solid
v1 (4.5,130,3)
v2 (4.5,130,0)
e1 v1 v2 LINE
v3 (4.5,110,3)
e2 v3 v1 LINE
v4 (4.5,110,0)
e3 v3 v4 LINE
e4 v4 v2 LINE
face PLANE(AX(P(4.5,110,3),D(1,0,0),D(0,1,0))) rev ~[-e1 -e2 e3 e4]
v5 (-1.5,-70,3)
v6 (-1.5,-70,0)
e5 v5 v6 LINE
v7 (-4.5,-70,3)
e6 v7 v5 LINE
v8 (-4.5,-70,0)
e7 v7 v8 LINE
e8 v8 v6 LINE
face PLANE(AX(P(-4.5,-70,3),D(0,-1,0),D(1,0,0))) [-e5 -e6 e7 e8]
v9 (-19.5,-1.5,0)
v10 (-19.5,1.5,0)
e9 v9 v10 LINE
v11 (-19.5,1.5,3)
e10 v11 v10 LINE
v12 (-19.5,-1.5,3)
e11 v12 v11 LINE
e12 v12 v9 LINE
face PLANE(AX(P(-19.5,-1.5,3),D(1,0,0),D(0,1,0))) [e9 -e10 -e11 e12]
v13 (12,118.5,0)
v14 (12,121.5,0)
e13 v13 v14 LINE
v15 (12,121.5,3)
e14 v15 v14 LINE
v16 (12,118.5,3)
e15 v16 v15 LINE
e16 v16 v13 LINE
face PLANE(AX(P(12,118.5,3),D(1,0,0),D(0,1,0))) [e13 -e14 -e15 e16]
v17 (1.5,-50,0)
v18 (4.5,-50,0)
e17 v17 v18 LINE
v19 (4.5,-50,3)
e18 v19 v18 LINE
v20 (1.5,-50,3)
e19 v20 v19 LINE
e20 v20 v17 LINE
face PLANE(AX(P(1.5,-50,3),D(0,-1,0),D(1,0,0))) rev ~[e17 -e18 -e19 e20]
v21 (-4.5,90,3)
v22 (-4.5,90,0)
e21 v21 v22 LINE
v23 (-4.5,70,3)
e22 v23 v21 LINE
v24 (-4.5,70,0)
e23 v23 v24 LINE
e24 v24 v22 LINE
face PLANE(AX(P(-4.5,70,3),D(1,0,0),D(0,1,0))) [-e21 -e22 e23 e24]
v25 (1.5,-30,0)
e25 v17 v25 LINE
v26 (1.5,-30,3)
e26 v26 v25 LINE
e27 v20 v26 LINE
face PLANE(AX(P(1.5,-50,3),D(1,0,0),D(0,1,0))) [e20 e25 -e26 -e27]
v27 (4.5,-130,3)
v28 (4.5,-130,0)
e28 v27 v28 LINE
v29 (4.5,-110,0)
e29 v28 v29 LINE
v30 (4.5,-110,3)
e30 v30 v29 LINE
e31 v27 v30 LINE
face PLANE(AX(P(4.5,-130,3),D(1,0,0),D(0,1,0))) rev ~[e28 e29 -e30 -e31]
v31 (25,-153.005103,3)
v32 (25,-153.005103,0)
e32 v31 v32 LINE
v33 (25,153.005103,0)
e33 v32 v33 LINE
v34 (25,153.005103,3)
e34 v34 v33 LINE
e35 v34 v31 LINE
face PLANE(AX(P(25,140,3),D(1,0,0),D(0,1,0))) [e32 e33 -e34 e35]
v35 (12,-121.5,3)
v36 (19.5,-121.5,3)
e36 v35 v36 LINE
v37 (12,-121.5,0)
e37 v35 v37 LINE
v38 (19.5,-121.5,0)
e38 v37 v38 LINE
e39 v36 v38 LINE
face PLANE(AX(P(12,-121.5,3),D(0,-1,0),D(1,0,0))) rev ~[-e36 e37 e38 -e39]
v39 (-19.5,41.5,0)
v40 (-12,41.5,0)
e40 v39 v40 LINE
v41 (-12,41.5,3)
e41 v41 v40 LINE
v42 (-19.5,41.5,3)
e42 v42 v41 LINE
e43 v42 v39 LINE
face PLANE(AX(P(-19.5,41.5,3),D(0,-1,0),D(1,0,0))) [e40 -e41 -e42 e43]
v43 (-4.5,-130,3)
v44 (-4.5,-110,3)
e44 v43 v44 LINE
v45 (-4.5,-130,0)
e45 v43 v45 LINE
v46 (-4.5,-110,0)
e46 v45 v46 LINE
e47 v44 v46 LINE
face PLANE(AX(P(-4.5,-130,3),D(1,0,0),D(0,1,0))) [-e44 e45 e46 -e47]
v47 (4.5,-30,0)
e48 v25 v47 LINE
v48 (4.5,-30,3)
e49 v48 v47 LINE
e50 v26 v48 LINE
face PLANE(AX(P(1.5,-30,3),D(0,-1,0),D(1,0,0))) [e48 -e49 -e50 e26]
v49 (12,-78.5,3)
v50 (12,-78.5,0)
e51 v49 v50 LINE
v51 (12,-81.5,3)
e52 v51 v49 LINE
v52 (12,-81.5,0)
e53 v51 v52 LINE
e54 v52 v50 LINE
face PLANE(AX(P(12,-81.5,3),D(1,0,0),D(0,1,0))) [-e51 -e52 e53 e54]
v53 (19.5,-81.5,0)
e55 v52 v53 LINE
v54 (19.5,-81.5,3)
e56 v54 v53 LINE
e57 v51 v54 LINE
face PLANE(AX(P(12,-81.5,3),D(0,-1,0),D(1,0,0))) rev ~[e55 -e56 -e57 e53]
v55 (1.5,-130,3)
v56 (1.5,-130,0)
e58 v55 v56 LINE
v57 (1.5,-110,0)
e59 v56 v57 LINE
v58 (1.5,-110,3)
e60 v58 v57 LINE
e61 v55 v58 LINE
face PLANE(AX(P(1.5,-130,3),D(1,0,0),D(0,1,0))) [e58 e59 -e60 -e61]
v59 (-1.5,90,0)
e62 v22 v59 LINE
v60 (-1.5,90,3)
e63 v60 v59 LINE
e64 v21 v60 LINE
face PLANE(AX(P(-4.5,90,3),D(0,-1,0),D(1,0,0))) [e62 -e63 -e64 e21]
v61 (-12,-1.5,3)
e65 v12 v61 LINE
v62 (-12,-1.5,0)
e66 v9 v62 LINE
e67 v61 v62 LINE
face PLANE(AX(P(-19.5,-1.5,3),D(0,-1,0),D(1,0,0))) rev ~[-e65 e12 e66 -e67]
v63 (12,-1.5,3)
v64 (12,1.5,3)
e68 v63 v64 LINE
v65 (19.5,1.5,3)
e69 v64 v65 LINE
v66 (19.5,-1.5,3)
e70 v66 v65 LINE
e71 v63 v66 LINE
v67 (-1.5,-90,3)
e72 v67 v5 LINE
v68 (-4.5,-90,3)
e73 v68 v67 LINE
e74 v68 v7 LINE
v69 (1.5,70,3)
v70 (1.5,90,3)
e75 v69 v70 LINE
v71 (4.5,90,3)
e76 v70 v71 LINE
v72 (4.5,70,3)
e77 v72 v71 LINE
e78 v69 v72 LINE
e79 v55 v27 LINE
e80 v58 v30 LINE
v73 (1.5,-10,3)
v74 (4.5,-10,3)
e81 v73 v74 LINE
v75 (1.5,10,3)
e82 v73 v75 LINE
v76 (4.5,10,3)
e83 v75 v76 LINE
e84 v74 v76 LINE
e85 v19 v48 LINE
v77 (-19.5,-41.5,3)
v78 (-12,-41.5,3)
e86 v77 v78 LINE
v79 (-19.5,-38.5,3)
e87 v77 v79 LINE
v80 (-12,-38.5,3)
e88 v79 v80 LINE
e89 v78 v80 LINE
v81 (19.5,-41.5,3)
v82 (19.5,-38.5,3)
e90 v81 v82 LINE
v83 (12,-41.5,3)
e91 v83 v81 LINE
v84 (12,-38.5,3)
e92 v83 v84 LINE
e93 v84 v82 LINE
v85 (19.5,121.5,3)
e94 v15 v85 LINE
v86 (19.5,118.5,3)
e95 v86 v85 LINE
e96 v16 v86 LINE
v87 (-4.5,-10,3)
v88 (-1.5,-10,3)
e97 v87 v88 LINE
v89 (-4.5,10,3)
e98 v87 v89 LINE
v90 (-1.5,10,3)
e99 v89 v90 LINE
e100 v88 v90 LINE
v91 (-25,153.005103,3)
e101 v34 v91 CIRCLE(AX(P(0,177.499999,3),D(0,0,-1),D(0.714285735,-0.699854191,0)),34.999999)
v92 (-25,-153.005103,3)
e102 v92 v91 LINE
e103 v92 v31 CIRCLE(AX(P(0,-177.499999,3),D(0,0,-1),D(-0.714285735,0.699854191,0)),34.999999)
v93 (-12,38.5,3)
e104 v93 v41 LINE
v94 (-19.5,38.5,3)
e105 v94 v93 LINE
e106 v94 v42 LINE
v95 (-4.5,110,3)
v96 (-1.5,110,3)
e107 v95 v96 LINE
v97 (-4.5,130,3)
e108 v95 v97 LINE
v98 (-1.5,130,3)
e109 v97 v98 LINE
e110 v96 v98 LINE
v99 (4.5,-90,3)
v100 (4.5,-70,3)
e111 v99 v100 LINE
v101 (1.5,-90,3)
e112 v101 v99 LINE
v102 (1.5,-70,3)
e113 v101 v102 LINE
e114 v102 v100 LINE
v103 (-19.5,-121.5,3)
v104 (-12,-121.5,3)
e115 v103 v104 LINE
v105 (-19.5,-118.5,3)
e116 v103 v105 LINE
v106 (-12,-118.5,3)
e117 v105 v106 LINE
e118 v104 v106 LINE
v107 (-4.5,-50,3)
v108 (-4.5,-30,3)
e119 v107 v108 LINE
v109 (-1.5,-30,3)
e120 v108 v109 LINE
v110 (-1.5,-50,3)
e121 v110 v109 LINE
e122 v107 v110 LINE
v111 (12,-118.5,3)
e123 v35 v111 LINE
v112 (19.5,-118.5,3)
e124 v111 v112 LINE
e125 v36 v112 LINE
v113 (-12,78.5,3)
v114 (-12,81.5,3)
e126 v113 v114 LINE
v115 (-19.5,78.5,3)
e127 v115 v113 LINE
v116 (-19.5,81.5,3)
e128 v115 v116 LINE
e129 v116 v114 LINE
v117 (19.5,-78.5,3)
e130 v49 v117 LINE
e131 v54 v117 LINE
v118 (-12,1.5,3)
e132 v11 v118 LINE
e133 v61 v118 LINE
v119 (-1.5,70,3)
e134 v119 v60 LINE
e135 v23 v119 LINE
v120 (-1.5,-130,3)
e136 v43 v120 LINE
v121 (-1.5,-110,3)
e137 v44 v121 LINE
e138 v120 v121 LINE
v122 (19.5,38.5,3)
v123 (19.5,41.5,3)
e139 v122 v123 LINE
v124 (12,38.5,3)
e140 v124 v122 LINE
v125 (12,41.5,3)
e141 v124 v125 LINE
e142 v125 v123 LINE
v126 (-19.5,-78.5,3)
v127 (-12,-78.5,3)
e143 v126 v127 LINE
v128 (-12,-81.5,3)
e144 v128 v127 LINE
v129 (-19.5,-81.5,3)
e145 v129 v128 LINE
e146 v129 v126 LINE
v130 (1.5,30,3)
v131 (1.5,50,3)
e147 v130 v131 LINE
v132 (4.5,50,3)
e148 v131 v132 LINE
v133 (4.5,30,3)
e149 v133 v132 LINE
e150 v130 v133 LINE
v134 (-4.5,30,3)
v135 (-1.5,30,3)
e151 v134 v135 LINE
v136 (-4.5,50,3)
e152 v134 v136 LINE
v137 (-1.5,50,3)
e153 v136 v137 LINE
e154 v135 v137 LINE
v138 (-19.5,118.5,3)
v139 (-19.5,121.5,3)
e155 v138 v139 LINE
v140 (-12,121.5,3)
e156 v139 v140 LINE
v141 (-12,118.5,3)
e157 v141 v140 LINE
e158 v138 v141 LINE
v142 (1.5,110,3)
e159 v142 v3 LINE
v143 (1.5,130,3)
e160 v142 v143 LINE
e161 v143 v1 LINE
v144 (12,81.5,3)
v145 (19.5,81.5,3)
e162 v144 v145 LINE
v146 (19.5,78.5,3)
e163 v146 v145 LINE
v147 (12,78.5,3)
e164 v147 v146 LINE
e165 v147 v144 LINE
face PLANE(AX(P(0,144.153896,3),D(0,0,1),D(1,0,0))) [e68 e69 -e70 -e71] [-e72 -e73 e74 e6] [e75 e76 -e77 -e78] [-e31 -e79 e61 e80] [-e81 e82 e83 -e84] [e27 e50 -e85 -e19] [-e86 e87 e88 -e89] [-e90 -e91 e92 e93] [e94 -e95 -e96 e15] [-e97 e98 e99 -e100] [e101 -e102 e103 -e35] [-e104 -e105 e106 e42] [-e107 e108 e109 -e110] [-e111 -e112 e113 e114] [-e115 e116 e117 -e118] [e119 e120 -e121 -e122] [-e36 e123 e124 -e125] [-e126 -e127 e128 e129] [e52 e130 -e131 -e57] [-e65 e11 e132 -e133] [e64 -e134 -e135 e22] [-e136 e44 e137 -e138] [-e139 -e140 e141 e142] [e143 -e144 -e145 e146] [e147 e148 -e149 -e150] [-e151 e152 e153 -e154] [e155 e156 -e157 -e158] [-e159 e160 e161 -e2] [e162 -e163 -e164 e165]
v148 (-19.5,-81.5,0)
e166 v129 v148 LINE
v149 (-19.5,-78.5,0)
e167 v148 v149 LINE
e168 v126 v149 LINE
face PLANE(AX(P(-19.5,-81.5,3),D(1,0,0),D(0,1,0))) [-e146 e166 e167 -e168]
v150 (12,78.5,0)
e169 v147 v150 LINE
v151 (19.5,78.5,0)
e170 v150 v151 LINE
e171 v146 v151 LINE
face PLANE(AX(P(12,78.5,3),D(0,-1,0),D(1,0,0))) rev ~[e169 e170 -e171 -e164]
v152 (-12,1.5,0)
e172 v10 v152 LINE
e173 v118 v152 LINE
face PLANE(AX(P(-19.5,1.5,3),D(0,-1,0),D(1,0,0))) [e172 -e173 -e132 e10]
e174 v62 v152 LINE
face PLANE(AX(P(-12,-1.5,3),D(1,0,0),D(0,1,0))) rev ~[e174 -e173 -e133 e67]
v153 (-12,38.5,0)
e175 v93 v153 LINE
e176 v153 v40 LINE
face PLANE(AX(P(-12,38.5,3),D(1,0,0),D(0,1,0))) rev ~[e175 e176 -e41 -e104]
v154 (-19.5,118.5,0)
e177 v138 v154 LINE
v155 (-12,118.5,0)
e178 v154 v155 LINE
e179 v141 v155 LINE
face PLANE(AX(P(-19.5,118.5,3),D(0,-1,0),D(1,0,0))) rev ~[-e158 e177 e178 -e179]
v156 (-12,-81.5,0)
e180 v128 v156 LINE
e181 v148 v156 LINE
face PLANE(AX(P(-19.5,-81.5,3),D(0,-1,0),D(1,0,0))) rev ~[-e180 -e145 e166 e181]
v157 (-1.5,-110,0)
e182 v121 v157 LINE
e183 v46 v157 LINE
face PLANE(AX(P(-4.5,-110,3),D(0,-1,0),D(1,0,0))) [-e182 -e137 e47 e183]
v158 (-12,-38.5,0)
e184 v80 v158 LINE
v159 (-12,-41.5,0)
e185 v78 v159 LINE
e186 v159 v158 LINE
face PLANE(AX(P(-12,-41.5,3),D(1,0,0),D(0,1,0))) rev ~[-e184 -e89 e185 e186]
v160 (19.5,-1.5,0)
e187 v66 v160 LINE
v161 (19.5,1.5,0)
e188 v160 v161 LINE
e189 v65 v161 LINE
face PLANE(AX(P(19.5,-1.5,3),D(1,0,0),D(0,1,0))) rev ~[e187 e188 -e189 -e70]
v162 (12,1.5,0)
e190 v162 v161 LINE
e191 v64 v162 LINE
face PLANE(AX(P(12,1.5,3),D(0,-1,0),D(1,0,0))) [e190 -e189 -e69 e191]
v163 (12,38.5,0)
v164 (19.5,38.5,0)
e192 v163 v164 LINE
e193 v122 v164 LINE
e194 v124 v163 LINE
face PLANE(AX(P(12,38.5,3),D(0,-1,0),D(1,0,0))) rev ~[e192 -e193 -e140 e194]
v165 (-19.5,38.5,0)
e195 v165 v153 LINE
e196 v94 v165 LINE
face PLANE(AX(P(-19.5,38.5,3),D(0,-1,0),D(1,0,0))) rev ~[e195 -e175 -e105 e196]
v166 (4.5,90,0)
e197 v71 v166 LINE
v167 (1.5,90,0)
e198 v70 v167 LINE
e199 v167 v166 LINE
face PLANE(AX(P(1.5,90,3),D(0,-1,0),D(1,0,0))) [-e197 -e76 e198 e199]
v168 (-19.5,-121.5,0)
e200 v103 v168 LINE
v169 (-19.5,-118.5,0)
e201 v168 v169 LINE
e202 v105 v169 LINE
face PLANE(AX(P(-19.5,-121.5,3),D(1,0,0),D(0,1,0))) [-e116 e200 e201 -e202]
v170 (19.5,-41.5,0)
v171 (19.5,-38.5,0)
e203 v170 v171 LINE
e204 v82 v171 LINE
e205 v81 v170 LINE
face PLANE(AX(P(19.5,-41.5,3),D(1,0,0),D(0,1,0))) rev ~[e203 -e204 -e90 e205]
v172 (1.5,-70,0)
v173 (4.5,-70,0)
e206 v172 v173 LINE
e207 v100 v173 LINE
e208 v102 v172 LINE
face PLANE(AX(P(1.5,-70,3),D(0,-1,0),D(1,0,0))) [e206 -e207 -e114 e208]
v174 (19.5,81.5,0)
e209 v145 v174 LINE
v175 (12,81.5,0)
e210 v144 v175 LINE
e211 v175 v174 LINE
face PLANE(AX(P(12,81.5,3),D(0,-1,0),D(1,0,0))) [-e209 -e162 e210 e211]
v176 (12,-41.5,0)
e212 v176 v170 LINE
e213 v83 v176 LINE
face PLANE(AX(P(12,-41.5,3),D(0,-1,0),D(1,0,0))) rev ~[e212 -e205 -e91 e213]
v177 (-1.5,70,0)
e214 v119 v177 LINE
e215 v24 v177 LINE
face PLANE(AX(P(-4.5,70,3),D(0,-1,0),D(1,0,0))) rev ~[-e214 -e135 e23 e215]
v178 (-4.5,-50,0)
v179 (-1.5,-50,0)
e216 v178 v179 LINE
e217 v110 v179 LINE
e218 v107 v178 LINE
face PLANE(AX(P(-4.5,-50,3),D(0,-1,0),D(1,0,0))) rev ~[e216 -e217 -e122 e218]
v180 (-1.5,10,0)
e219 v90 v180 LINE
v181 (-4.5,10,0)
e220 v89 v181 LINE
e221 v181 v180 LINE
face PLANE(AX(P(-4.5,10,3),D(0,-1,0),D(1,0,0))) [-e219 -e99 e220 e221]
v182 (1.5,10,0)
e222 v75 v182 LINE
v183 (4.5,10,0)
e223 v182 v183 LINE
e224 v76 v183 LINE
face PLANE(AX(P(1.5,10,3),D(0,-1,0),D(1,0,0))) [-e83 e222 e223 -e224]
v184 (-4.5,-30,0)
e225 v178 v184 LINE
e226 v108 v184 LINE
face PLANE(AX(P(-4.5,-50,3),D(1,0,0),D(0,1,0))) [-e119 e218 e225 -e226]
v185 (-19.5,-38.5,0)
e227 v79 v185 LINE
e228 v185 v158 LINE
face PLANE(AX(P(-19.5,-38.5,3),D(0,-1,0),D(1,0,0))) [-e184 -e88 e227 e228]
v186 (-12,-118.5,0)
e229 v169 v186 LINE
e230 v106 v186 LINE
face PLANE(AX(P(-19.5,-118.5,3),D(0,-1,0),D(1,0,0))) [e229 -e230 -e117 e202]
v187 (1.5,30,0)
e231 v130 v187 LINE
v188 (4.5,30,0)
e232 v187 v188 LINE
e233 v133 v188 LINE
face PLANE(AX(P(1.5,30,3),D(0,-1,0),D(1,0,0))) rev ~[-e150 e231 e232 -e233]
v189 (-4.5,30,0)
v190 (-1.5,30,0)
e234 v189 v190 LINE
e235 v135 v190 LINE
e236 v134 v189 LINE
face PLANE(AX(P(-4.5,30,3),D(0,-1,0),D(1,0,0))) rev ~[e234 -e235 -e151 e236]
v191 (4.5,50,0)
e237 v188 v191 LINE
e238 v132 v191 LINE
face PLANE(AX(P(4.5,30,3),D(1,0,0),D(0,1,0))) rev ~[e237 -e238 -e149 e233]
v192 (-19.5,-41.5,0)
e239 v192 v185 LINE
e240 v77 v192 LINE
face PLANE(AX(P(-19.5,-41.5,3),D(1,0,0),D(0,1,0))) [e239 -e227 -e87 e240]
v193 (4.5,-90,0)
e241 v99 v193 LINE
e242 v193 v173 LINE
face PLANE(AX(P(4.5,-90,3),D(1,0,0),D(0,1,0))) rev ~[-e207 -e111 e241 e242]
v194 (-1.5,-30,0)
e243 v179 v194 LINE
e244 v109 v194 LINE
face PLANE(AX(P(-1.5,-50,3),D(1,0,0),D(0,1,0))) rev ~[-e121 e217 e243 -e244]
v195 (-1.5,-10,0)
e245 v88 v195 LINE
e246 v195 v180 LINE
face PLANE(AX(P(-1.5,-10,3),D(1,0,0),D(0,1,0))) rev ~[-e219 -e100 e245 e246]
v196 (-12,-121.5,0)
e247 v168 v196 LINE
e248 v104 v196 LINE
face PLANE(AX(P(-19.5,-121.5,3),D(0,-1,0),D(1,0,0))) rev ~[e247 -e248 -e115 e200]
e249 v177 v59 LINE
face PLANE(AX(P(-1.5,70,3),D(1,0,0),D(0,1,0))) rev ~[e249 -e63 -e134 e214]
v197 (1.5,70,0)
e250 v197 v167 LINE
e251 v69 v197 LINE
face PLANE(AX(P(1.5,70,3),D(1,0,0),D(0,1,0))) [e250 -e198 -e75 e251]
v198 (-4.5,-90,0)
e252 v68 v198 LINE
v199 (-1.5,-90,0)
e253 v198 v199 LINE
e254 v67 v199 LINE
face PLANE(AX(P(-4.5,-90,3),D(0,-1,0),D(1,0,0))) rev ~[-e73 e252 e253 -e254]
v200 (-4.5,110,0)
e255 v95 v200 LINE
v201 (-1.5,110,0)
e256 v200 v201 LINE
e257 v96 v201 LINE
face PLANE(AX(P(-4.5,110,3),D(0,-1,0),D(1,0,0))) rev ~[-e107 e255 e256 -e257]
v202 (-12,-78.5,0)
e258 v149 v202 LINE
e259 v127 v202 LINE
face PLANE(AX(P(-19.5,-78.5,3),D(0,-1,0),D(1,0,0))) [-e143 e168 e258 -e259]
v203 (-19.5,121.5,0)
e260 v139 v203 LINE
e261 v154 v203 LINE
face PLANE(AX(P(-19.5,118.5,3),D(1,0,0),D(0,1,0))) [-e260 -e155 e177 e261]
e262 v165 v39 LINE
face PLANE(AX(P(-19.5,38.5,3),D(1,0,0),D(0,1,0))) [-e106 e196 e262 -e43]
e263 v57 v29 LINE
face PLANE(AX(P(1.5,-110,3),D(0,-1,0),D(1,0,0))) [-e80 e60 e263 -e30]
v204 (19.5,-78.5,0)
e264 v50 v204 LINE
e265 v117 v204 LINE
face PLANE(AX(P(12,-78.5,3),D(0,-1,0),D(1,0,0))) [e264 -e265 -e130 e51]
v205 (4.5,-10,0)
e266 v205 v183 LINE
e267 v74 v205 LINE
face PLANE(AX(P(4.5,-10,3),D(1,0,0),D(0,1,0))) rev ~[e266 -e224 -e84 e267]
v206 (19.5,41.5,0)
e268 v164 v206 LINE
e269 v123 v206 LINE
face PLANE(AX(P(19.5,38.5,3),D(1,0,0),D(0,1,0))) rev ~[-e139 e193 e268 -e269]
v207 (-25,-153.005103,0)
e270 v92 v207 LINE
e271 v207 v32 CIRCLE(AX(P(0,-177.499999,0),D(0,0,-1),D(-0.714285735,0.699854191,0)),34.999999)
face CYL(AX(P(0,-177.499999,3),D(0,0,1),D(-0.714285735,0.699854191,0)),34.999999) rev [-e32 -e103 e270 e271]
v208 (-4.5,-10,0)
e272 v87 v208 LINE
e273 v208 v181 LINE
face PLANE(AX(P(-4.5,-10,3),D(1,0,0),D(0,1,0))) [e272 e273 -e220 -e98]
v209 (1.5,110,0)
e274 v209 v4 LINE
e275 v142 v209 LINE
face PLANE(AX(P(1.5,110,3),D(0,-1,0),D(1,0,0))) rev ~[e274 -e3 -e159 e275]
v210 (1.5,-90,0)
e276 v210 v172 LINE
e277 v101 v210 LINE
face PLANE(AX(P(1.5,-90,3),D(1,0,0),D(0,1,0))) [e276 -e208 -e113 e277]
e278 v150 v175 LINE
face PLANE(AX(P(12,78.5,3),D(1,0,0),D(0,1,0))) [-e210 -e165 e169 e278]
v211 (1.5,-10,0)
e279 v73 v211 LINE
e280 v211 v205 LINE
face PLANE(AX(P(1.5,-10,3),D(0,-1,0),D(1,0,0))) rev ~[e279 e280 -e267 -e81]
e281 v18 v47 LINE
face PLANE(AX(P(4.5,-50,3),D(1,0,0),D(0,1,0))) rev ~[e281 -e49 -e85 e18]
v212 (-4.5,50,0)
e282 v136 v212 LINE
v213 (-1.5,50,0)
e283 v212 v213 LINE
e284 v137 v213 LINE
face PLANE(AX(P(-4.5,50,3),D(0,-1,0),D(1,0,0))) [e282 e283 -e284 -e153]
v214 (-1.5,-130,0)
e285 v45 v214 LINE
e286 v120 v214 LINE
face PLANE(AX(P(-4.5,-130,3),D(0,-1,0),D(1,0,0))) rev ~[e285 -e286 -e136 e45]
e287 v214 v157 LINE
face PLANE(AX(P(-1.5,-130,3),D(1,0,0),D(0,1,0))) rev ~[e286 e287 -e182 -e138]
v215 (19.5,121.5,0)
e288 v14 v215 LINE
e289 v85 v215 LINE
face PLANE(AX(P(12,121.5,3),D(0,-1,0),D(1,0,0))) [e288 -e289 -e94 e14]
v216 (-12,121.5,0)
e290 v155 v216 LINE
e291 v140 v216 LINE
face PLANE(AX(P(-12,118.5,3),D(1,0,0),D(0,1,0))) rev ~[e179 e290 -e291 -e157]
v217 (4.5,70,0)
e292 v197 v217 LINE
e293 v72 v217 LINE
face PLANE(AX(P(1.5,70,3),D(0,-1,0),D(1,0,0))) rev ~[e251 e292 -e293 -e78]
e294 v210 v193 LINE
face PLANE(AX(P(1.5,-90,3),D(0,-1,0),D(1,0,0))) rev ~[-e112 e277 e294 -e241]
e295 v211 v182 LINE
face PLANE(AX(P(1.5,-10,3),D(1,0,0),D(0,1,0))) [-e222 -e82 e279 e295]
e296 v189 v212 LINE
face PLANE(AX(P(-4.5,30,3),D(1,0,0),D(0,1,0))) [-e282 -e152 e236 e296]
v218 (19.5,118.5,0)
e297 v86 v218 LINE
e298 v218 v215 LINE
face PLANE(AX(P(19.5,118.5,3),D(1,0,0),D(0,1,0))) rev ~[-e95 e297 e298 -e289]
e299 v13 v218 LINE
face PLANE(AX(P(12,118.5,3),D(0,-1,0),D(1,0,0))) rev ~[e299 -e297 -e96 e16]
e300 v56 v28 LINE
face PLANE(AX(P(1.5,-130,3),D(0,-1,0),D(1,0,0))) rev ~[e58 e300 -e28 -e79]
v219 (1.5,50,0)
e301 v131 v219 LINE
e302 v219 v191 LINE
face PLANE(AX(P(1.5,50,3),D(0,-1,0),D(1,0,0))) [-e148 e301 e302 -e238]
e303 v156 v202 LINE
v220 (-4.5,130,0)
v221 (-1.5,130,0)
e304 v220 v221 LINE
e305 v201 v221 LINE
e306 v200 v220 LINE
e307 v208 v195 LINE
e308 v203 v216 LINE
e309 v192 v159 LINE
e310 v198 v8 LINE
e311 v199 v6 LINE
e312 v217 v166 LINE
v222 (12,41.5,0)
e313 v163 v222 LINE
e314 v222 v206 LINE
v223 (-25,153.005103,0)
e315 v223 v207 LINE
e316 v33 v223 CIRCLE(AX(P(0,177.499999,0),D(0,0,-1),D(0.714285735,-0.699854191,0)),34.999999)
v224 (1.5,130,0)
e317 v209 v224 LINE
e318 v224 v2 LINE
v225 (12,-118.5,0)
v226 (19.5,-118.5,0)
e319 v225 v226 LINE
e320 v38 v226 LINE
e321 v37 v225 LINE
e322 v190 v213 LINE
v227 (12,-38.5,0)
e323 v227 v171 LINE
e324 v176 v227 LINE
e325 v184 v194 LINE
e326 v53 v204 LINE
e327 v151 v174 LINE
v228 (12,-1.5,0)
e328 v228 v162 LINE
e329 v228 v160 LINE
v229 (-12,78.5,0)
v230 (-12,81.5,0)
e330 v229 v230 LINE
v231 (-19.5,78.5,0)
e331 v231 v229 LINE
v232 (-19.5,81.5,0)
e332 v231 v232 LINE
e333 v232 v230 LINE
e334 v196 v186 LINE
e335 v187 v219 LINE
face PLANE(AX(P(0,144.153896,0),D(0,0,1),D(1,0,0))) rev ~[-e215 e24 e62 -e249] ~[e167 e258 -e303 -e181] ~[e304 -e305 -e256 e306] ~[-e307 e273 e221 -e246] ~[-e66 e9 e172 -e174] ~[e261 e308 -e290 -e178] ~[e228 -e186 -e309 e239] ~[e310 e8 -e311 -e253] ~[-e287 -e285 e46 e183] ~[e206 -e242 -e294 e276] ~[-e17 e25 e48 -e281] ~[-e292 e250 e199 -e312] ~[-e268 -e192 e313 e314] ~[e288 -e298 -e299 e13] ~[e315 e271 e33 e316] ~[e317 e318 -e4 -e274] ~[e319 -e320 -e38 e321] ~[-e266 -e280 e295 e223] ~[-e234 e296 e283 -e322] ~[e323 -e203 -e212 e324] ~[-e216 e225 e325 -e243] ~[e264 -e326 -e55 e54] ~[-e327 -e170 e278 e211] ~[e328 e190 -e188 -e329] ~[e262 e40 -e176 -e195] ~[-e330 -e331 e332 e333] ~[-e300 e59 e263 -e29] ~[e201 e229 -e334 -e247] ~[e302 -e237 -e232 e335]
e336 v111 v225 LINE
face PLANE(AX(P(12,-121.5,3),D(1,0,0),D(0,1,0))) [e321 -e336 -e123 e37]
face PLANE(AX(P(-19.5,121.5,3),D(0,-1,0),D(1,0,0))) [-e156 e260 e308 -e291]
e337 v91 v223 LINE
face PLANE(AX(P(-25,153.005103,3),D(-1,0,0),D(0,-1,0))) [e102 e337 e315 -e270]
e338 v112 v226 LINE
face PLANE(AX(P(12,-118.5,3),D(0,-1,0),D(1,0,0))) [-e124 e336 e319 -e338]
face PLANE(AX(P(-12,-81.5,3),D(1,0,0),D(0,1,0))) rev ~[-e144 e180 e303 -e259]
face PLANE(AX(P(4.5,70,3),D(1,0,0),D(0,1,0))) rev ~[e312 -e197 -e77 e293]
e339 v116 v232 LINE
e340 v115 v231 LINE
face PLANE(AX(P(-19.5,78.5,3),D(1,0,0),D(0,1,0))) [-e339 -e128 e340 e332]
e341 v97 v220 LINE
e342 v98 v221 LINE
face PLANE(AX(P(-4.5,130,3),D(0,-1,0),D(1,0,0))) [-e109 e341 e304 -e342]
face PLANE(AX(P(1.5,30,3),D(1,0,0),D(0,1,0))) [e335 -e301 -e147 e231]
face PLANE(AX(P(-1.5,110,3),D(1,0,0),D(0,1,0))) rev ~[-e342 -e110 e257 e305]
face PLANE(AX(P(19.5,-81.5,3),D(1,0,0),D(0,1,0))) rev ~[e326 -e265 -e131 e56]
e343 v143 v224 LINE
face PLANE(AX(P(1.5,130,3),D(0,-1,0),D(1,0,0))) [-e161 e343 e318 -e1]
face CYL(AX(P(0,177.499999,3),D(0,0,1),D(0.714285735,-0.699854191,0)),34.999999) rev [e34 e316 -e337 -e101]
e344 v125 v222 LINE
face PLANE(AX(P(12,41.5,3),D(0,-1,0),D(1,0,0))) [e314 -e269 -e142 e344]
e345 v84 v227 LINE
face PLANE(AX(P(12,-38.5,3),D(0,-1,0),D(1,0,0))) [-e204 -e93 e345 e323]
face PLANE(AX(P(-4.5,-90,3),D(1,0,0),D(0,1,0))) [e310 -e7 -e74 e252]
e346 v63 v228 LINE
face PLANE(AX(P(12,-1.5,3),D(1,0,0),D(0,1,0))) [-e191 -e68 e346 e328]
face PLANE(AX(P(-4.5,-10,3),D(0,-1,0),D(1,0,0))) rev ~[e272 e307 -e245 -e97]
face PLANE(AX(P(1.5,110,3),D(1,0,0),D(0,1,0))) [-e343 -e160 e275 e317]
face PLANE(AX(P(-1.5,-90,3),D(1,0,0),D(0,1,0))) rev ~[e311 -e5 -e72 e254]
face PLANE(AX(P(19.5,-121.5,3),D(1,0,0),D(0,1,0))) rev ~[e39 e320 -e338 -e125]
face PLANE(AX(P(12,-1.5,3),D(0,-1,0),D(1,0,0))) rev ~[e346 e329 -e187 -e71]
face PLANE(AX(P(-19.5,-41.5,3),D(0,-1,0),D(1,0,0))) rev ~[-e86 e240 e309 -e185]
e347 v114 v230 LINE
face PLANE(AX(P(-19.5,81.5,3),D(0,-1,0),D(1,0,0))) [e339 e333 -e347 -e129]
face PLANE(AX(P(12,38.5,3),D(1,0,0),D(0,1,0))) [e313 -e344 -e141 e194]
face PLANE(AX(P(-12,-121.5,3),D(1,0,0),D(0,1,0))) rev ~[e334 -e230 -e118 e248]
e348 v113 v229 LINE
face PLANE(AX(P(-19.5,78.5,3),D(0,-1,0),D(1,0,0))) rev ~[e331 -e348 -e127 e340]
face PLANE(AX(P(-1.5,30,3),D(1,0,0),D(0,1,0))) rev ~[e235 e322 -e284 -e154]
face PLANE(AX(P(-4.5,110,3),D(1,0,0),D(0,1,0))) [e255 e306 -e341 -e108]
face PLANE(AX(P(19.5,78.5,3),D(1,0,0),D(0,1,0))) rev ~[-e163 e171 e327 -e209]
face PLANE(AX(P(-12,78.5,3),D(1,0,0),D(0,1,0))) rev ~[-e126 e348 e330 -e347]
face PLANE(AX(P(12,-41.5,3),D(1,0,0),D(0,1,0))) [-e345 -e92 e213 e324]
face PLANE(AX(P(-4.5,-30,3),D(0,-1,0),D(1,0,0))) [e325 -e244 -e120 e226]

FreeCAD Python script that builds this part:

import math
import FreeCAD as App
import Part
import Sketcher
from FreeCAD import Vector
Q = App.Units.Quantity

doc = App.newDocument("Part")
body = doc.addObject("PartDesign::Body", "Body")

# Sketch on XY plane
sketch1 = doc.addObject("Sketcher::SketchObject", "Sketch")
body.addObject(sketch1)
sketch1.AttachmentSupport = (doc.XY_Plane, [""])
sketch1.MapMode = "FlatFace"
sketch1.addGeometry([
    Part.LineSegment(Vector(-25, 140, 0), Vector(-25, -140, 0)),
    Part.LineSegment(Vector(-25, -140, 0), Vector(25, -140, 0)),
    Part.LineSegment(Vector(25, -140, 0), Vector(25, 140, 0)),
    Part.LineSegment(Vector(25, 140, 0), Vector(-25, 140, 0)),
], False)
sketch1.addConstraint([
    Sketcher.Constraint("Coincident", 0, 2, 1, 1),
    Sketcher.Constraint("Coincident", 1, 2, 2, 1),
    Sketcher.Constraint("Coincident", 2, 2, 3, 1),
    Sketcher.Constraint("Coincident", 3, 2, 0, 1),
    Sketcher.Constraint("Vertical", 0),
    Sketcher.Constraint("Horizontal", 1),
    Sketcher.Constraint("Vertical", 2),
    Sketcher.Constraint("Horizontal", 3),
    Sketcher.Constraint("Symmetric", 0, 2, 2, 2, -1, 1),
    Sketcher.Constraint("DistanceX", 1, 1, 1, 2, Q("50 mm")),
    Sketcher.Constraint("DistanceY", 0, 2, 0, 1, Q("280 mm")),
])
pad1 = doc.addObject("PartDesign::Pad", "Pad")
body.addObject(pad1)
pad1.Profile = sketch1
pad1.Length = 3

# Sketch on XY plane
sketch2 = doc.addObject("Sketcher::SketchObject", "Sketch001")
body.addObject(sketch2)
sketch2.AttachmentSupport = (doc.XY_Plane, [""])
sketch2.MapMode = "FlatFace"
sketch2.AttachmentOffset = App.Placement(Vector(0, 0, 3), App.Rotation())
sketch2.addGeometry([
    Part.LineSegment(Vector(1.5, 130, 0), Vector(1.5, 110, 0)),  # 0
    Part.LineSegment(Vector(1.5, 110, 0), Vector(4.5, 110, 0)),  # 1
    Part.LineSegment(Vector(4.5, 110, 0), Vector(4.5, 130, 0)),  # 2
    Part.LineSegment(Vector(4.5, 130, 0), Vector(1.5, 130, 0)),  # 3
    Part.LineSegment(Vector(1.5, 90, 0), Vector(1.5, 70, 0)),  # 4
    Part.LineSegment(Vector(1.5, 70, 0), Vector(4.5, 70, 0)),  # 5
    Part.LineSegment(Vector(4.5, 70, 0), Vector(4.5, 90, 0)),  # 6
    Part.LineSegment(Vector(4.5, 90, 0), Vector(1.5, 90, 0)),  # 7
    Part.LineSegment(Vector(1.5, 50, 0), Vector(1.5, 30, 0)),  # 8
    Part.LineSegment(Vector(1.5, 30, 0), Vector(4.5, 30, 0)),  # 9
    Part.LineSegment(Vector(4.5, 30, 0), Vector(4.5, 50, 0)),  # 10
    Part.LineSegment(Vector(4.5, 50, 0), Vector(1.5, 50, 0)),  # 11
    Part.LineSegment(Vector(1.5, 10, 0), Vector(1.5, -10, 0)),  # 12
    Part.LineSegment(Vector(1.5, -10, 0), Vector(4.5, -10, 0)),  # 13
    Part.LineSegment(Vector(4.5, -10, 0), Vector(4.5, 10, 0)),  # 14
    Part.LineSegment(Vector(4.5, 10, 0), Vector(1.5, 10, 0)),  # 15
    Part.LineSegment(Vector(1.5, -30, 0), Vector(1.5, -50, 0)),  # 16
    Part.LineSegment(Vector(1.5, -50, 0), Vector(4.5, -50, 0)),  # 17
    Part.LineSegment(Vector(4.5, -50, 0), Vector(4.5, -30, 0)),  # 18
    Part.LineSegment(Vector(4.5, -30, 0), Vector(1.5, -30, 0)),  # 19
    Part.LineSegment(Vector(1.5, -70, 0), Vector(1.5, -90, 0)),  # 20
    Part.LineSegment(Vector(1.5, -90, 0), Vector(4.5, -90, 0)),  # 21
    Part.LineSegment(Vector(4.5, -90, 0), Vector(4.5, -70, 0)),  # 22
    Part.LineSegment(Vector(4.5, -70, 0), Vector(1.5, -70, 0)),  # 23
    Part.LineSegment(Vector(1.5, -110, 0), Vector(1.5, -130, 0)),  # 24
    Part.LineSegment(Vector(1.5, -130, 0), Vector(4.5, -130, 0)),  # 25
    Part.LineSegment(Vector(4.5, -130, 0), Vector(4.5, -110, 0)),  # 26
    Part.LineSegment(Vector(4.5, -110, 0), Vector(1.5, -110, 0)),  # 27
    Part.LineSegment(Vector(-4.5, 130, 0), Vector(-4.5, 110, 0)),  # 28
    Part.LineSegment(Vector(-4.5, 110, 0), Vector(-1.5, 110, 0)),  # 29
    Part.LineSegment(Vector(-1.5, 110, 0), Vector(-1.5, 130, 0)),  # 30
    Part.LineSegment(Vector(-1.5, 130, 0), Vector(-4.5, 130, 0)),  # 31
    Part.LineSegment(Vector(-4.5, 90, 0), Vector(-4.5, 70, 0)),  # 32
    Part.LineSegment(Vector(-4.5, 70, 0), Vector(-1.5, 70, 0)),  # 33
    Part.LineSegment(Vector(-1.5, 70, 0), Vector(-1.5, 90, 0)),  # 34
    Part.LineSegment(Vector(-1.5, 90, 0), Vector(-4.5, 90, 0)),  # 35
    Part.LineSegment(Vector(-4.5, 50, 0), Vector(-4.5, 30, 0)),  # 36
    Part.LineSegment(Vector(-4.5, 30, 0), Vector(-1.5, 30, 0)),  # 37
    Part.LineSegment(Vector(-1.5, 30, 0), Vector(-1.5, 50, 0)),  # 38
    Part.LineSegment(Vector(-1.5, 50, 0), Vector(-4.5, 50, 0)),  # 39
    Part.LineSegment(Vector(-4.5, 10, 0), Vector(-4.5, -10, 0)),  # 40
    Part.LineSegment(Vector(-4.5, -10, 0), Vector(-1.5, -10, 0)),  # 41
    Part.LineSegment(Vector(-1.5, -10, 0), Vector(-1.5, 10, 0)),  # 42
    Part.LineSegment(Vector(-1.5, 10, 0), Vector(-4.5, 10, 0)),  # 43
    Part.LineSegment(Vector(-4.5, -30, 0), Vector(-4.5, -50, 0)),  # 44
    Part.LineSegment(Vector(-4.5, -50, 0), Vector(-1.5, -50, 0)),  # 45
    Part.LineSegment(Vector(-1.5, -50, 0), Vector(-1.5, -30, 0)),  # 46
    Part.LineSegment(Vector(-1.5, -30, 0), Vector(-4.5, -30, 0)),  # 47
    Part.LineSegment(Vector(-4.5, -70, 0), Vector(-4.5, -90, 0)),  # 48
    Part.LineSegment(Vector(-4.5, -90, 0), Vector(-1.5, -90, 0)),  # 49
    Part.LineSegment(Vector(-1.5, -90, 0), Vector(-1.5, -70, 0)),  # 50
    Part.LineSegment(Vector(-1.5, -70, 0), Vector(-4.5, -70, 0)),  # 51
    Part.LineSegment(Vector(-4.5, -110, 0), Vector(-4.5, -130, 0)),  # 52
    Part.LineSegment(Vector(-4.5, -130, 0), Vector(-1.5, -130, 0)),  # 53
    Part.LineSegment(Vector(-1.5, -130, 0), Vector(-1.5, -110, 0)),  # 54
    Part.LineSegment(Vector(-1.5, -110, 0), Vector(-4.5, -110, 0)),  # 55
], False)
sketch2.addConstraint([
    Sketcher.Constraint("Coincident", 0, 2, 1, 1),
    Sketcher.Constraint("Coincident", 1, 2, 2, 1),
    Sketcher.Constraint("Coincident", 2, 2, 3, 1),
    Sketcher.Constraint("Coincident", 3, 2, 0, 1),
    Sketcher.Constraint("Coincident", 4, 2, 5, 1),
    Sketcher.Constraint("Coincident", 5, 2, 6, 1),
    Sketcher.Constraint("Coincident", 6, 2, 7, 1),
    Sketcher.Constraint("Coincident", 7, 2, 4, 1),
    Sketcher.Constraint("Coincident", 8, 2, 9, 1),
    Sketcher.Constraint("Coincident", 9, 2, 10, 1),
    Sketcher.Constraint("Coincident", 10, 2, 11, 1),
    Sketcher.Constraint("Coincident", 11, 2, 8, 1),
    Sketcher.Constraint("Coincident", 12, 2, 13, 1),
    Sketcher.Constraint("Coincident", 13, 2, 14, 1),
    Sketcher.Constraint("Coincident", 14, 2, 15, 1),
    Sketcher.Constraint("Coincident", 15, 2, 12, 1),
    Sketcher.Constraint("Coincident", 16, 2, 17, 1),
    Sketcher.Constraint("Coincident", 17, 2, 18, 1),
    Sketcher.Constraint("Coincident", 18, 2, 19, 1),
    Sketcher.Constraint("Coincident", 19, 2, 16, 1),
    Sketcher.Constraint("Coincident", 20, 2, 21, 1),
    Sketcher.Constraint("Coincident", 21, 2, 22, 1),
    Sketcher.Constraint("Coincident", 22, 2, 23, 1),
    Sketcher.Constraint("Coincident", 23, 2, 20, 1),
    Sketcher.Constraint("Coincident", 24, 2, 25, 1),
    Sketcher.Constraint("Coincident", 25, 2, 26, 1),
    Sketcher.Constraint("Coincident", 26, 2, 27, 1),
    Sketcher.Constraint("Coincident", 27, 2, 24, 1),
    Sketcher.Constraint("Coincident", 28, 2, 29, 1),
    Sketcher.Constraint("Coincident", 29, 2, 30, 1),
    Sketcher.Constraint("Coincident", 30, 2, 31, 1),
    Sketcher.Constraint("Coincident", 31, 2, 28, 1),
    Sketcher.Constraint("Coincident", 32, 2, 33, 1),
    Sketcher.Constraint("Coincident", 33, 2, 34, 1),
    Sketcher.Constraint("Coincident", 34, 2, 35, 1),
    Sketcher.Constraint("Coincident", 35, 2, 32, 1),
    Sketcher.Constraint("Coincident", 36, 2, 37, 1),
    Sketcher.Constraint("Coincident", 37, 2, 38, 1),
    Sketcher.Constraint("Coincident", 38, 2, 39, 1),
    Sketcher.Constraint("Coincident", 39, 2, 36, 1),
    Sketcher.Constraint("Coincident", 40, 2, 41, 1),
    Sketcher.Constraint("Coincident", 41, 2, 42, 1),
    Sketcher.Constraint("Coincident", 42, 2, 43, 1),
    Sketcher.Constraint("Coincident", 43, 2, 40, 1),
    Sketcher.Constraint("Coincident", 44, 2, 45, 1),
    Sketcher.Constraint("Coincident", 45, 2, 46, 1),
    Sketcher.Constraint("Coincident", 46, 2, 47, 1),
    Sketcher.Constraint("Coincident", 47, 2, 44, 1),
    Sketcher.Constraint("Coincident", 48, 2, 49, 1),
    Sketcher.Constraint("Coincident", 49, 2, 50, 1),
    Sketcher.Constraint("Coincident", 50, 2, 51, 1),
    Sketcher.Constraint("Coincident", 51, 2, 48, 1),
    Sketcher.Constraint("Coincident", 52, 2, 53, 1),
    Sketcher.Constraint("Coincident", 53, 2, 54, 1),
    Sketcher.Constraint("Coincident", 54, 2, 55, 1),
    Sketcher.Constraint("Coincident", 55, 2, 52, 1),
    Sketcher.Constraint("Vertical", 0),
    Sketcher.Constraint("Horizontal", 1),
    Sketcher.Constraint("Vertical", 2),
    Sketcher.Constraint("Horizontal", 3),
    Sketcher.Constraint("Vertical", 4),
    Sketcher.Constraint("Horizontal", 5),
    Sketcher.Constraint("Vertical", 6),
    Sketcher.Constraint("Horizontal", 7),
    Sketcher.Constraint("Vertical", 8),
    Sketcher.Constraint("Horizontal", 9),
    Sketcher.Constraint("Vertical", 10),
    Sketcher.Constraint("Horizontal", 11),
    Sketcher.Constraint("Vertical", 12),
    Sketcher.Constraint("Horizontal", 13),
    Sketcher.Constraint("Vertical", 14),
    Sketcher.Constraint("Horizontal", 15),
    Sketcher.Constraint("Vertical", 16),
    Sketcher.Constraint("Horizontal", 17),
    Sketcher.Constraint("Vertical", 18),
    Sketcher.Constraint("Horizontal", 19),
    Sketcher.Constraint("Vertical", 20),
    Sketcher.Constraint("Horizontal", 21),
    Sketcher.Constraint("Vertical", 22),
    Sketcher.Constraint("Horizontal", 23),
    Sketcher.Constraint("Vertical", 24),
    Sketcher.Constraint("Horizontal", 25),
    Sketcher.Constraint("Vertical", 26),
    Sketcher.Constraint("Horizontal", 27),
    Sketcher.Constraint("Vertical", 28),
    Sketcher.Constraint("Horizontal", 29),
    Sketcher.Constraint("Vertical", 30),
    Sketcher.Constraint("Horizontal", 31),
    Sketcher.Constraint("Vertical", 32),
    Sketcher.Constraint("Horizontal", 33),
    Sketcher.Constraint("Vertical", 34),
    Sketcher.Constraint("Horizontal", 35),
    Sketcher.Constraint("Vertical", 36),
    Sketcher.Constraint("Horizontal", 37),
    Sketcher.Constraint("Vertical", 38),
    Sketcher.Constraint("Horizontal", 39),
    Sketcher.Constraint("Vertical", 40),
    Sketcher.Constraint("Horizontal", 41),
    Sketcher.Constraint("Vertical", 42),
    Sketcher.Constraint("Horizontal", 43),
    Sketcher.Constraint("Vertical", 44),
    Sketcher.Constraint("Horizontal", 45),
    Sketcher.Constraint("Vertical", 46),
    Sketcher.Constraint("Horizontal", 47),
    Sketcher.Constraint("Vertical", 48),
    Sketcher.Constraint("Horizontal", 49),
    Sketcher.Constraint("Vertical", 50),
    Sketcher.Constraint("Horizontal", 51),
    Sketcher.Constraint("Vertical", 52),
    Sketcher.Constraint("Horizontal", 53),
    Sketcher.Constraint("Vertical", 54),
    Sketcher.Constraint("Horizontal", 55),
    Sketcher.Constraint("Symmetric", 26, 2, 28, 2, -1, 1),
    Sketcher.Constraint("Symmetric", 24, 2, 30, 2, -1, 1),
    Sketcher.Constraint("Symmetric", 22, 2, 32, 2, -1, 1),
    Sketcher.Constraint("Symmetric", 20, 2, 34, 2, -1, 1),
    Sketcher.Constraint("Symmetric", 18, 2, 36, 2, -1, 1),
    Sketcher.Constraint("Symmetric", 16, 2, 38, 2, -1, 1),
    Sketcher.Constraint("Symmetric", 14, 2, 40, 2, -1, 1),
    Sketcher.Constraint("Symmetric", 12, 2, 42, 2, -1, 1),
    Sketcher.Constraint("Symmetric", 10, 2, 44, 2, -1, 1),
    Sketcher.Constraint("Symmetric", 8, 2, 46, 2, -1, 1),
    Sketcher.Constraint("Symmetric", 6, 2, 48, 2, -1, 1),
    Sketcher.Constraint("Symmetric", 4, 2, 50, 2, -1, 1),
    Sketcher.Constraint("Symmetric", 2, 2, 52, 2, -1, 1),
    Sketcher.Constraint("Symmetric", 0, 2, 54, 2, -1, 1),
    Sketcher.Constraint("Symmetric", 1, 2, 28, 2, -2),
    Sketcher.Constraint("Symmetric", 3, 2, 30, 2, -2),
    Sketcher.Constraint("Symmetric", 5, 2, 32, 2, -2),
    Sketcher.Constraint("Symmetric", 7, 2, 34, 2, -2),
    Sketcher.Constraint("Symmetric", 9, 2, 36, 2, -2),
    Sketcher.Constraint("Symmetric", 11, 2, 38, 2, -2),
    Sketcher.Constraint("Horizontal", 13, 2, 40, 2),
    Sketcher.Constraint("Vertical", 3, 2, 4, 2),
    Sketcher.Constraint("Vertical", 2, 2, 5, 2),
    Sketcher.Constraint("Vertical", 7, 2, 8, 2),
    Sketcher.Constraint("Vertical", 6, 2, 9, 2),
    Sketcher.Constraint("Vertical", 11, 2, 12, 2),
    Sketcher.Constraint("Vertical", 10, 2, 13, 2),
    Sketcher.Constraint("Equal", 2, 4),
    Sketcher.Constraint("Equal", 6, 8),
    Sketcher.Constraint("Equal", 10, 12),
    Sketcher.Constraint("DistanceX", 1, 1, 1, 2, Q("3 mm")),
    Sketcher.Constraint("DistanceY", 0, 2, 0, 1, Q("20 mm")),
    Sketcher.Constraint("DistanceY", -1, 1, 0, 2, Q("110 mm")),
    Sketcher.Constraint("DistanceY", -1, 1, 4, 2, Q("70 mm")),
    Sketcher.Constraint("DistanceY", -1, 1, 8, 2, Q("30 mm")),
    Sketcher.Constraint("DistanceX", 28, 2, 0, 2, Q("6 mm")),
])
pocket1 = doc.addObject("PartDesign::Pocket", "Pocket")
body.addObject(pocket1)
pocket1.Profile = sketch2
pocket1.Length = 25

# Sketch on XY plane
sketch3 = doc.addObject("Sketcher::SketchObject", "Sketch002")
body.addObject(sketch3)
sketch3.AttachmentSupport = (doc.XY_Plane, [""])
sketch3.MapMode = "FlatFace"
sketch3.AttachmentOffset = App.Placement(Vector(0, 0, 3), App.Rotation())
sketch3.addGeometry([
    Part.LineSegment(Vector(12, 121.5, 0), Vector(12, 118.5, 0)),  # 0
    Part.LineSegment(Vector(12, 118.5, 0), Vector(19.5, 118.5, 0)),  # 1
    Part.LineSegment(Vector(19.5, 118.5, 0), Vector(19.5, 121.5, 0)),  # 2
    Part.LineSegment(Vector(19.5, 121.5, 0), Vector(12, 121.5, 0)),  # 3
    Part.LineSegment(Vector(12, 81.5, 0), Vector(12, 78.5, 0)),  # 4
    Part.LineSegment(Vector(12, 78.5, 0), Vector(19.5, 78.5, 0)),  # 5
    Part.LineSegment(Vector(19.5, 78.5, 0), Vector(19.5, 81.5, 0)),  # 6
    Part.LineSegment(Vector(19.5, 81.5, 0), Vector(12, 81.5, 0)),  # 7
    Part.LineSegment(Vector(12, 41.5, 0), Vector(12, 38.5, 0)),  # 8
    Part.LineSegment(Vector(12, 38.5, 0), Vector(19.5, 38.5, 0)),  # 9
    Part.LineSegment(Vector(19.5, 38.5, 0), Vector(19.5, 41.5, 0)),  # 10
    Part.LineSegment(Vector(19.5, 41.5, 0), Vector(12, 41.5, 0)),  # 11
    Part.LineSegment(Vector(12, 1.5, 0), Vector(12, -1.5, 0)),  # 12
    Part.LineSegment(Vector(12, -1.5, 0), Vector(19.5, -1.5, 0)),  # 13
    Part.LineSegment(Vector(19.5, -1.5, 0), Vector(19.5, 1.5, 0)),  # 14
    Part.LineSegment(Vector(19.5, 1.5, 0), Vector(12, 1.5, 0)),  # 15
    Part.LineSegment(Vector(12, -38.5, 0), Vector(12, -41.5, 0)),  # 16
    Part.LineSegment(Vector(12, -41.5, 0), Vector(19.5, -41.5, 0)),  # 17
    Part.LineSegment(Vector(19.5, -41.5, 0), Vector(19.5, -38.5, 0)),  # 18
    Part.LineSegment(Vector(19.5, -38.5, 0), Vector(12, -38.5, 0)),  # 19
    Part.LineSegment(Vector(12, -78.5, 0), Vector(12, -81.5, 0)),  # 20
    Part.LineSegment(Vector(12, -81.5, 0), Vector(19.5, -81.5, 0)),  # 21
    Part.LineSegment(Vector(19.5, -81.5, 0), Vector(19.5, -78.5, 0)),  # 22
    Part.LineSegment(Vector(19.5, -78.5, 0), Vector(12, -78.5, 0)),  # 23
    Part.LineSegment(Vector(12, -118.5, 0), Vector(12, -121.5, 0)),  # 24
    Part.LineSegment(Vector(12, -121.5, 0), Vector(19.5, -121.5, 0)),  # 25
    Part.LineSegment(Vector(19.5, -121.5, 0), Vector(19.5, -118.5, 0)),  # 26
    Part.LineSegment(Vector(19.5, -118.5, 0), Vector(12, -118.5, 0)),  # 27
    Part.LineSegment(Vector(-19.5, 121.5, 0), Vector(-19.5, 118.5, 0)),  # 28
    Part.LineSegment(Vector(-19.5, 118.5, 0), Vector(-12, 118.5, 0)),  # 29
    Part.LineSegment(Vector(-12, 118.5, 0), Vector(-12, 121.5, 0)),  # 30
    Part.LineSegment(Vector(-12, 121.5, 0), Vector(-19.5, 121.5, 0)),  # 31
    Part.LineSegment(Vector(-19.5, -78.5, 0), Vector(-19.5, -81.5, 0)),  # 32
    Part.LineSegment(Vector(-19.5, -81.5, 0), Vector(-12, -81.5, 0)),  # 33
    Part.LineSegment(Vector(-12, -81.5, 0), Vector(-12, -78.5, 0)),  # 34
    Part.LineSegment(Vector(-12, -78.5, 0), Vector(-19.5, -78.5, 0)),  # 35
    Part.LineSegment(Vector(-19.5, 41.5, 0), Vector(-19.5, 38.5, 0)),  # 36
    Part.LineSegment(Vector(-19.5, 38.5, 0), Vector(-12, 38.5, 0)),  # 37
    Part.LineSegment(Vector(-12, 38.5, 0), Vector(-12, 41.5, 0)),  # 38
    Part.LineSegment(Vector(-12, 41.5, 0), Vector(-19.5, 41.5, 0)),  # 39
    Part.LineSegment(Vector(-19.5, 81.5, 0), Vector(-19.5, 78.5, 0)),  # 40
    Part.LineSegment(Vector(-19.5, 78.5, 0), Vector(-12, 78.5, 0)),  # 41
    Part.LineSegment(Vector(-12, 78.5, 0), Vector(-12, 81.5, 0)),  # 42
    Part.LineSegment(Vector(-12, 81.5, 0), Vector(-19.5, 81.5, 0)),  # 43
    Part.LineSegment(Vector(-19.5, -38.5, 0), Vector(-19.5, -41.5, 0)),  # 44
    Part.LineSegment(Vector(-19.5, -41.5, 0), Vector(-12, -41.5, 0)),  # 45
    Part.LineSegment(Vector(-12, -41.5, 0), Vector(-12, -38.5, 0)),  # 46
    Part.LineSegment(Vector(-12, -38.5, 0), Vector(-19.5, -38.5, 0)),  # 47
    Part.LineSegment(Vector(-19.5, -118.5, 0), Vector(-19.5, -121.5, 0)),  # 48
    Part.LineSegment(Vector(-19.5, -121.5, 0), Vector(-12, -121.5, 0)),  # 49
    Part.LineSegment(Vector(-12, -121.5, 0), Vector(-12, -118.5, 0)),  # 50
    Part.LineSegment(Vector(-12, -118.5, 0), Vector(-19.5, -118.5, 0)),  # 51
    Part.LineSegment(Vector(-19.5, 1.5, 0), Vector(-19.5, -1.5, 0)),  # 52
    Part.LineSegment(Vector(-19.5, -1.5, 0), Vector(-12, -1.5, 0)),  # 53
    Part.LineSegment(Vector(-12, -1.5, 0), Vector(-12, 1.5, 0)),  # 54
    Part.LineSegment(Vector(-12, 1.5, 0), Vector(-19.5, 1.5, 0)),  # 55
], False)
sketch3.addConstraint([
    Sketcher.Constraint("Coincident", 0, 2, 1, 1),
    Sketcher.Constraint("Coincident", 1, 2, 2, 1),
    Sketcher.Constraint("Coincident", 2, 2, 3, 1),
    Sketcher.Constraint("Coincident", 3, 2, 0, 1),
    Sketcher.Constraint("Coincident", 4, 2, 5, 1),
    Sketcher.Constraint("Coincident", 5, 2, 6, 1),
    Sketcher.Constraint("Coincident", 6, 2, 7, 1),
    Sketcher.Constraint("Coincident", 7, 2, 4, 1),
    Sketcher.Constraint("Coincident", 8, 2, 9, 1),
    Sketcher.Constraint("Coincident", 9, 2, 10, 1),
    Sketcher.Constraint("Coincident", 10, 2, 11, 1),
    Sketcher.Constraint("Coincident", 11, 2, 8, 1),
    Sketcher.Constraint("Coincident", 12, 2, 13, 1),
    Sketcher.Constraint("Coincident", 13, 2, 14, 1),
    Sketcher.Constraint("Coincident", 14, 2, 15, 1),
    Sketcher.Constraint("Coincident", 15, 2, 12, 1),
    Sketcher.Constraint("Coincident", 16, 2, 17, 1),
    Sketcher.Constraint("Coincident", 17, 2, 18, 1),
    Sketcher.Constraint("Coincident", 18, 2, 19, 1),
    Sketcher.Constraint("Coincident", 19, 2, 16, 1),
    Sketcher.Constraint("Coincident", 20, 2, 21, 1),
    Sketcher.Constraint("Coincident", 21, 2, 22, 1),
    Sketcher.Constraint("Coincident", 22, 2, 23, 1),
    Sketcher.Constraint("Coincident", 23, 2, 20, 1),
    Sketcher.Constraint("Coincident", 24, 2, 25, 1),
    Sketcher.Constraint("Coincident", 25, 2, 26, 1),
    Sketcher.Constraint("Coincident", 26, 2, 27, 1),
    Sketcher.Constraint("Coincident", 27, 2, 24, 1),
    Sketcher.Constraint("Coincident", 28, 2, 29, 1),
    Sketcher.Constraint("Coincident", 29, 2, 30, 1),
    Sketcher.Constraint("Coincident", 30, 2, 31, 1),
    Sketcher.Constraint("Coincident", 31, 2, 28, 1),
    Sketcher.Constraint("Coincident", 32, 2, 33, 1),
    Sketcher.Constraint("Coincident", 33, 2, 34, 1),
    Sketcher.Constraint("Coincident", 34, 2, 35, 1),
    Sketcher.Constraint("Coincident", 35, 2, 32, 1),
    Sketcher.Constraint("Coincident", 36, 2, 37, 1),
    Sketcher.Constraint("Coincident", 37, 2, 38, 1),
    Sketcher.Constraint("Coincident", 38, 2, 39, 1),
    Sketcher.Constraint("Coincident", 39, 2, 36, 1),
    Sketcher.Constraint("Coincident", 40, 2, 41, 1),
    Sketcher.Constraint("Coincident", 41, 2, 42, 1),
    Sketcher.Constraint("Coincident", 42, 2, 43, 1),
    Sketcher.Constraint("Coincident", 43, 2, 40, 1),
    Sketcher.Constraint("Coincident", 44, 2, 45, 1),
    Sketcher.Constraint("Coincident", 45, 2, 46, 1),
    Sketcher.Constraint("Coincident", 46, 2, 47, 1),
    Sketcher.Constraint("Coincident", 47, 2, 44, 1),
    Sketcher.Constraint("Coincident", 48, 2, 49, 1),
    Sketcher.Constraint("Coincident", 49, 2, 50, 1),
    Sketcher.Constraint("Coincident", 50, 2, 51, 1),
    Sketcher.Constraint("Coincident", 51, 2, 48, 1),
    Sketcher.Constraint("Coincident", 52, 2, 53, 1),
    Sketcher.Constraint("Coincident", 53, 2, 54, 1),
    Sketcher.Constraint("Coincident", 54, 2, 55, 1),
    Sketcher.Constraint("Coincident", 55, 2, 52, 1),
    Sketcher.Constraint("Vertical", 0),
    Sketcher.Constraint("Horizontal", 1),
    Sketcher.Constraint("Vertical", 2),
    Sketcher.Constraint("Horizontal", 3),
    Sketcher.Constraint("Vertical", 4),
    Sketcher.Constraint("Horizontal", 5),
    Sketcher.Constraint("Vertical", 6),
    Sketcher.Constraint("Horizontal", 7),
    Sketcher.Constraint("Vertical", 8),
    Sketcher.Constraint("Horizontal", 9),
    Sketcher.Constraint("Vertical", 10),
    Sketcher.Constraint("Horizontal", 11),
    Sketcher.Constraint("Vertical", 12),
    Sketcher.Constraint("Horizontal", 13),
    Sketcher.Constraint("Vertical", 14),
    Sketcher.Constraint("Horizontal", 15),
    Sketcher.Constraint("Vertical", 16),
    Sketcher.Constraint("Horizontal", 17),
    Sketcher.Constraint("Vertical", 18),
    Sketcher.Constraint("Horizontal", 19),
    Sketcher.Constraint("Vertical", 20),
    Sketcher.Constraint("Horizontal", 21),
    Sketcher.Constraint("Vertical", 22),
    Sketcher.Constraint("Horizontal", 23),
    Sketcher.Constraint("Vertical", 24),
    Sketcher.Constraint("Horizontal", 25),
    Sketcher.Constraint("Vertical", 26),
    Sketcher.Constraint("Horizontal", 27),
    Sketcher.Constraint("Vertical", 28),
    Sketcher.Constraint("Horizontal", 29),
    Sketcher.Constraint("Vertical", 30),
    Sketcher.Constraint("Horizontal", 31),
    Sketcher.Constraint("Vertical", 32),
    Sketcher.Constraint("Horizontal", 33),
    Sketcher.Constraint("Vertical", 34),
    Sketcher.Constraint("Horizontal", 35),
    Sketcher.Constraint("Vertical", 36),
    Sketcher.Constraint("Horizontal", 37),
    Sketcher.Constraint("Vertical", 38),
    Sketcher.Constraint("Horizontal", 39),
    Sketcher.Constraint("Vertical", 40),
    Sketcher.Constraint("Horizontal", 41),
    Sketcher.Constraint("Vertical", 42),
    Sketcher.Constraint("Horizontal", 43),
    Sketcher.Constraint("Vertical", 44),
    Sketcher.Constraint("Horizontal", 45),
    Sketcher.Constraint("Vertical", 46),
    Sketcher.Constraint("Horizontal", 47),
    Sketcher.Constraint("Vertical", 48),
    Sketcher.Constraint("Horizontal", 49),
    Sketcher.Constraint("Vertical", 50),
    Sketcher.Constraint("Horizontal", 51),
    Sketcher.Constraint("Vertical", 52),
    Sketcher.Constraint("Horizontal", 53),
    Sketcher.Constraint("Vertical", 54),
    Sketcher.Constraint("Horizontal", 55),
    Sketcher.Constraint("Symmetric", 26, 2, 28, 2, -1, 1),
    Sketcher.Constraint("Symmetric", 24, 2, 30, 2, -1, 1),
    Sketcher.Constraint("Symmetric", 6, 2, 32, 2, -1, 1),
    Sketcher.Constraint("Symmetric", 4, 2, 34, 2, -1, 1),
    Sketcher.Constraint("Symmetric", 18, 2, 36, 2, -1, 1),
    Sketcher.Constraint("Symmetric", 16, 2, 38, 2, -1, 1),
    Sketcher.Constraint("Symmetric", 22, 2, 40, 2, -1, 1),
    Sketcher.Constraint("Symmetric", 20, 2, 42, 2, -1, 1),
    Sketcher.Constraint("Symmetric", 10, 2, 44, 2, -1, 1),
    Sketcher.Constraint("Symmetric", 8, 2, 46, 2, -1, 1),
    Sketcher.Constraint("Symmetric", 2, 2, 48, 2, -1, 1),
    Sketcher.Constraint("Symmetric", 0, 2, 50, 2, -1, 1),
    Sketcher.Constraint("Symmetric", 14, 2, 52, 2, -1, 1),
    Sketcher.Constraint("Symmetric", 12, 2, 54, 2, -1, 1),
    Sketcher.Constraint("Symmetric", 1, 2, 28, 2, -2),
    Sketcher.Constraint("Symmetric", 3, 2, 30, 2, -2),
    Sketcher.Constraint("Symmetric", 21, 2, 32, 2, -2),
    Sketcher.Constraint("Symmetric", 23, 2, 34, 2, -2),
    Sketcher.Constraint("Symmetric", 9, 2, 36, 2, -2),
    Sketcher.Constraint("Symmetric", 11, 2, 38, 2, -2),
    Sketcher.Constraint("Horizontal", 13, 2, 52, 2),
    Sketcher.Constraint("Vertical", 3, 2, 4, 2),
    Sketcher.Constraint("Vertical", 2, 2, 5, 2),
    Sketcher.Constraint("Vertical", 7, 2, 8, 2),
    Sketcher.Constraint("Vertical", 6, 2, 9, 2),
    Sketcher.Constraint("Vertical", 11, 2, 12, 2),
    Sketcher.Constraint("Vertical", 10, 2, 13, 2),
    Sketcher.Constraint("Equal", 2, 4),
    Sketcher.Constraint("Equal", 6, 8),
    Sketcher.Constraint("Equal", 10, 12),
    Sketcher.Constraint("DistanceY", 0, 2, 0, 1, Q("3 mm")),
    Sketcher.Constraint("DistanceX", 1, 1, 1, 2, Q("7.5 mm")),
    Sketcher.Constraint("DistanceX", -1, 1, 0, 2, Q("12 mm")),
    Sketcher.Constraint("DistanceY", 4, 2, 0, 2, Q("40 mm")),
    Sketcher.Constraint("DistanceY", 8, 2, 4, 2, Q("40 mm")),
    Sketcher.Constraint("DistanceY", 12, 2, 8, 2, Q("40 mm")),
])
pocket2 = doc.addObject("PartDesign::Pocket", "Pocket001")
body.addObject(pocket2)
pocket2.Profile = sketch3
pocket2.Length = 25

# Sketch on XY plane
sketch4 = doc.addObject("Sketcher::SketchObject", "Sketch003")
body.addObject(sketch4)
sketch4.AttachmentSupport = (doc.XY_Plane, [""])
sketch4.MapMode = "FlatFace"
sketch4.AttachmentOffset = App.Placement(Vector(0, 0, 3), App.Rotation())
sketch4.addGeometry([
    Part.ArcOfCircle(Part.Circle(Vector(0, 177, 0), Vector(0, 0, 1), 35), math.radians(-136), math.radians(-44)),  # 0
    Part.LineSegment(Vector(-25, 153, 0), Vector(-25, 140, 0)),  # 1
    Part.LineSegment(Vector(-25, 140, 0), Vector(25, 140, 0)),  # 2
    Part.LineSegment(Vector(25, 140, 0), Vector(25, 153, 0)),  # 3
    Part.LineSegment(Vector(25, -140, 0), Vector(-25, -140, 0)),  # 4
    Part.LineSegment(Vector(-25, -140, 0), Vector(-25, -153, 0)),  # 5
    Part.ArcOfCircle(Part.Circle(Vector(0, -177, 0), Vector(0, 0, 1), 35), math.radians(44), math.radians(136)),  # 6
    Part.LineSegment(Vector(25, -153, 0), Vector(25, -140, 0)),  # 7
], False)
sketch4.addConstraint([
    Sketcher.Constraint("Coincident", 0, 1, 1, 1),
    Sketcher.Constraint("Coincident", 1, 2, 2, 1),
    Sketcher.Constraint("Coincident", 2, 2, 3, 1),
    Sketcher.Constraint("Coincident", 3, 2, 0, 2),
    Sketcher.Constraint("Coincident", 4, 2, 5, 1),
    Sketcher.Constraint("Coincident", 5, 2, 6, 2),
    Sketcher.Constraint("Coincident", 6, 1, 7, 1),
    Sketcher.Constraint("Coincident", 7, 2, 4, 1),
    Sketcher.Constraint("Vertical", 1),
    Sketcher.Constraint("Horizontal", 2),
    Sketcher.Constraint("Vertical", 3),
    Sketcher.Constraint("Horizontal", 4),
    Sketcher.Constraint("Vertical", 5),
    Sketcher.Constraint("Vertical", 7),
    Sketcher.Constraint("Equal", 0, 6),
    Sketcher.Constraint("Symmetric", 0, 3, 6, 3, -1, 1),
    Sketcher.Constraint("Symmetric", 2, 2, 4, 2, -1, 1),
    Sketcher.Constraint("Symmetric", 0, 1, 3, 2, -2),
    Sketcher.Constraint("Horizontal", 5, 2, 6, 1),
    Sketcher.Constraint("Radius", 0, Q("34.999999 mm")),
    Sketcher.Constraint("DistanceX", 2, 1, 2, 2, Q("50 mm")),
    Sketcher.Constraint("DistanceY", -1, 1, 1, 2, Q("140 mm")),
    Sketcher.Constraint("DistanceY", 6, 3, 0, 3, Q("354.999998 mm")),
])
pad2 = doc.addObject("PartDesign::Pad", "Pad001")
body.addObject(pad2)
pad2.Profile = sketch4
pad2.Length = 3
pad2.Reversed = True

doc.recompute()
